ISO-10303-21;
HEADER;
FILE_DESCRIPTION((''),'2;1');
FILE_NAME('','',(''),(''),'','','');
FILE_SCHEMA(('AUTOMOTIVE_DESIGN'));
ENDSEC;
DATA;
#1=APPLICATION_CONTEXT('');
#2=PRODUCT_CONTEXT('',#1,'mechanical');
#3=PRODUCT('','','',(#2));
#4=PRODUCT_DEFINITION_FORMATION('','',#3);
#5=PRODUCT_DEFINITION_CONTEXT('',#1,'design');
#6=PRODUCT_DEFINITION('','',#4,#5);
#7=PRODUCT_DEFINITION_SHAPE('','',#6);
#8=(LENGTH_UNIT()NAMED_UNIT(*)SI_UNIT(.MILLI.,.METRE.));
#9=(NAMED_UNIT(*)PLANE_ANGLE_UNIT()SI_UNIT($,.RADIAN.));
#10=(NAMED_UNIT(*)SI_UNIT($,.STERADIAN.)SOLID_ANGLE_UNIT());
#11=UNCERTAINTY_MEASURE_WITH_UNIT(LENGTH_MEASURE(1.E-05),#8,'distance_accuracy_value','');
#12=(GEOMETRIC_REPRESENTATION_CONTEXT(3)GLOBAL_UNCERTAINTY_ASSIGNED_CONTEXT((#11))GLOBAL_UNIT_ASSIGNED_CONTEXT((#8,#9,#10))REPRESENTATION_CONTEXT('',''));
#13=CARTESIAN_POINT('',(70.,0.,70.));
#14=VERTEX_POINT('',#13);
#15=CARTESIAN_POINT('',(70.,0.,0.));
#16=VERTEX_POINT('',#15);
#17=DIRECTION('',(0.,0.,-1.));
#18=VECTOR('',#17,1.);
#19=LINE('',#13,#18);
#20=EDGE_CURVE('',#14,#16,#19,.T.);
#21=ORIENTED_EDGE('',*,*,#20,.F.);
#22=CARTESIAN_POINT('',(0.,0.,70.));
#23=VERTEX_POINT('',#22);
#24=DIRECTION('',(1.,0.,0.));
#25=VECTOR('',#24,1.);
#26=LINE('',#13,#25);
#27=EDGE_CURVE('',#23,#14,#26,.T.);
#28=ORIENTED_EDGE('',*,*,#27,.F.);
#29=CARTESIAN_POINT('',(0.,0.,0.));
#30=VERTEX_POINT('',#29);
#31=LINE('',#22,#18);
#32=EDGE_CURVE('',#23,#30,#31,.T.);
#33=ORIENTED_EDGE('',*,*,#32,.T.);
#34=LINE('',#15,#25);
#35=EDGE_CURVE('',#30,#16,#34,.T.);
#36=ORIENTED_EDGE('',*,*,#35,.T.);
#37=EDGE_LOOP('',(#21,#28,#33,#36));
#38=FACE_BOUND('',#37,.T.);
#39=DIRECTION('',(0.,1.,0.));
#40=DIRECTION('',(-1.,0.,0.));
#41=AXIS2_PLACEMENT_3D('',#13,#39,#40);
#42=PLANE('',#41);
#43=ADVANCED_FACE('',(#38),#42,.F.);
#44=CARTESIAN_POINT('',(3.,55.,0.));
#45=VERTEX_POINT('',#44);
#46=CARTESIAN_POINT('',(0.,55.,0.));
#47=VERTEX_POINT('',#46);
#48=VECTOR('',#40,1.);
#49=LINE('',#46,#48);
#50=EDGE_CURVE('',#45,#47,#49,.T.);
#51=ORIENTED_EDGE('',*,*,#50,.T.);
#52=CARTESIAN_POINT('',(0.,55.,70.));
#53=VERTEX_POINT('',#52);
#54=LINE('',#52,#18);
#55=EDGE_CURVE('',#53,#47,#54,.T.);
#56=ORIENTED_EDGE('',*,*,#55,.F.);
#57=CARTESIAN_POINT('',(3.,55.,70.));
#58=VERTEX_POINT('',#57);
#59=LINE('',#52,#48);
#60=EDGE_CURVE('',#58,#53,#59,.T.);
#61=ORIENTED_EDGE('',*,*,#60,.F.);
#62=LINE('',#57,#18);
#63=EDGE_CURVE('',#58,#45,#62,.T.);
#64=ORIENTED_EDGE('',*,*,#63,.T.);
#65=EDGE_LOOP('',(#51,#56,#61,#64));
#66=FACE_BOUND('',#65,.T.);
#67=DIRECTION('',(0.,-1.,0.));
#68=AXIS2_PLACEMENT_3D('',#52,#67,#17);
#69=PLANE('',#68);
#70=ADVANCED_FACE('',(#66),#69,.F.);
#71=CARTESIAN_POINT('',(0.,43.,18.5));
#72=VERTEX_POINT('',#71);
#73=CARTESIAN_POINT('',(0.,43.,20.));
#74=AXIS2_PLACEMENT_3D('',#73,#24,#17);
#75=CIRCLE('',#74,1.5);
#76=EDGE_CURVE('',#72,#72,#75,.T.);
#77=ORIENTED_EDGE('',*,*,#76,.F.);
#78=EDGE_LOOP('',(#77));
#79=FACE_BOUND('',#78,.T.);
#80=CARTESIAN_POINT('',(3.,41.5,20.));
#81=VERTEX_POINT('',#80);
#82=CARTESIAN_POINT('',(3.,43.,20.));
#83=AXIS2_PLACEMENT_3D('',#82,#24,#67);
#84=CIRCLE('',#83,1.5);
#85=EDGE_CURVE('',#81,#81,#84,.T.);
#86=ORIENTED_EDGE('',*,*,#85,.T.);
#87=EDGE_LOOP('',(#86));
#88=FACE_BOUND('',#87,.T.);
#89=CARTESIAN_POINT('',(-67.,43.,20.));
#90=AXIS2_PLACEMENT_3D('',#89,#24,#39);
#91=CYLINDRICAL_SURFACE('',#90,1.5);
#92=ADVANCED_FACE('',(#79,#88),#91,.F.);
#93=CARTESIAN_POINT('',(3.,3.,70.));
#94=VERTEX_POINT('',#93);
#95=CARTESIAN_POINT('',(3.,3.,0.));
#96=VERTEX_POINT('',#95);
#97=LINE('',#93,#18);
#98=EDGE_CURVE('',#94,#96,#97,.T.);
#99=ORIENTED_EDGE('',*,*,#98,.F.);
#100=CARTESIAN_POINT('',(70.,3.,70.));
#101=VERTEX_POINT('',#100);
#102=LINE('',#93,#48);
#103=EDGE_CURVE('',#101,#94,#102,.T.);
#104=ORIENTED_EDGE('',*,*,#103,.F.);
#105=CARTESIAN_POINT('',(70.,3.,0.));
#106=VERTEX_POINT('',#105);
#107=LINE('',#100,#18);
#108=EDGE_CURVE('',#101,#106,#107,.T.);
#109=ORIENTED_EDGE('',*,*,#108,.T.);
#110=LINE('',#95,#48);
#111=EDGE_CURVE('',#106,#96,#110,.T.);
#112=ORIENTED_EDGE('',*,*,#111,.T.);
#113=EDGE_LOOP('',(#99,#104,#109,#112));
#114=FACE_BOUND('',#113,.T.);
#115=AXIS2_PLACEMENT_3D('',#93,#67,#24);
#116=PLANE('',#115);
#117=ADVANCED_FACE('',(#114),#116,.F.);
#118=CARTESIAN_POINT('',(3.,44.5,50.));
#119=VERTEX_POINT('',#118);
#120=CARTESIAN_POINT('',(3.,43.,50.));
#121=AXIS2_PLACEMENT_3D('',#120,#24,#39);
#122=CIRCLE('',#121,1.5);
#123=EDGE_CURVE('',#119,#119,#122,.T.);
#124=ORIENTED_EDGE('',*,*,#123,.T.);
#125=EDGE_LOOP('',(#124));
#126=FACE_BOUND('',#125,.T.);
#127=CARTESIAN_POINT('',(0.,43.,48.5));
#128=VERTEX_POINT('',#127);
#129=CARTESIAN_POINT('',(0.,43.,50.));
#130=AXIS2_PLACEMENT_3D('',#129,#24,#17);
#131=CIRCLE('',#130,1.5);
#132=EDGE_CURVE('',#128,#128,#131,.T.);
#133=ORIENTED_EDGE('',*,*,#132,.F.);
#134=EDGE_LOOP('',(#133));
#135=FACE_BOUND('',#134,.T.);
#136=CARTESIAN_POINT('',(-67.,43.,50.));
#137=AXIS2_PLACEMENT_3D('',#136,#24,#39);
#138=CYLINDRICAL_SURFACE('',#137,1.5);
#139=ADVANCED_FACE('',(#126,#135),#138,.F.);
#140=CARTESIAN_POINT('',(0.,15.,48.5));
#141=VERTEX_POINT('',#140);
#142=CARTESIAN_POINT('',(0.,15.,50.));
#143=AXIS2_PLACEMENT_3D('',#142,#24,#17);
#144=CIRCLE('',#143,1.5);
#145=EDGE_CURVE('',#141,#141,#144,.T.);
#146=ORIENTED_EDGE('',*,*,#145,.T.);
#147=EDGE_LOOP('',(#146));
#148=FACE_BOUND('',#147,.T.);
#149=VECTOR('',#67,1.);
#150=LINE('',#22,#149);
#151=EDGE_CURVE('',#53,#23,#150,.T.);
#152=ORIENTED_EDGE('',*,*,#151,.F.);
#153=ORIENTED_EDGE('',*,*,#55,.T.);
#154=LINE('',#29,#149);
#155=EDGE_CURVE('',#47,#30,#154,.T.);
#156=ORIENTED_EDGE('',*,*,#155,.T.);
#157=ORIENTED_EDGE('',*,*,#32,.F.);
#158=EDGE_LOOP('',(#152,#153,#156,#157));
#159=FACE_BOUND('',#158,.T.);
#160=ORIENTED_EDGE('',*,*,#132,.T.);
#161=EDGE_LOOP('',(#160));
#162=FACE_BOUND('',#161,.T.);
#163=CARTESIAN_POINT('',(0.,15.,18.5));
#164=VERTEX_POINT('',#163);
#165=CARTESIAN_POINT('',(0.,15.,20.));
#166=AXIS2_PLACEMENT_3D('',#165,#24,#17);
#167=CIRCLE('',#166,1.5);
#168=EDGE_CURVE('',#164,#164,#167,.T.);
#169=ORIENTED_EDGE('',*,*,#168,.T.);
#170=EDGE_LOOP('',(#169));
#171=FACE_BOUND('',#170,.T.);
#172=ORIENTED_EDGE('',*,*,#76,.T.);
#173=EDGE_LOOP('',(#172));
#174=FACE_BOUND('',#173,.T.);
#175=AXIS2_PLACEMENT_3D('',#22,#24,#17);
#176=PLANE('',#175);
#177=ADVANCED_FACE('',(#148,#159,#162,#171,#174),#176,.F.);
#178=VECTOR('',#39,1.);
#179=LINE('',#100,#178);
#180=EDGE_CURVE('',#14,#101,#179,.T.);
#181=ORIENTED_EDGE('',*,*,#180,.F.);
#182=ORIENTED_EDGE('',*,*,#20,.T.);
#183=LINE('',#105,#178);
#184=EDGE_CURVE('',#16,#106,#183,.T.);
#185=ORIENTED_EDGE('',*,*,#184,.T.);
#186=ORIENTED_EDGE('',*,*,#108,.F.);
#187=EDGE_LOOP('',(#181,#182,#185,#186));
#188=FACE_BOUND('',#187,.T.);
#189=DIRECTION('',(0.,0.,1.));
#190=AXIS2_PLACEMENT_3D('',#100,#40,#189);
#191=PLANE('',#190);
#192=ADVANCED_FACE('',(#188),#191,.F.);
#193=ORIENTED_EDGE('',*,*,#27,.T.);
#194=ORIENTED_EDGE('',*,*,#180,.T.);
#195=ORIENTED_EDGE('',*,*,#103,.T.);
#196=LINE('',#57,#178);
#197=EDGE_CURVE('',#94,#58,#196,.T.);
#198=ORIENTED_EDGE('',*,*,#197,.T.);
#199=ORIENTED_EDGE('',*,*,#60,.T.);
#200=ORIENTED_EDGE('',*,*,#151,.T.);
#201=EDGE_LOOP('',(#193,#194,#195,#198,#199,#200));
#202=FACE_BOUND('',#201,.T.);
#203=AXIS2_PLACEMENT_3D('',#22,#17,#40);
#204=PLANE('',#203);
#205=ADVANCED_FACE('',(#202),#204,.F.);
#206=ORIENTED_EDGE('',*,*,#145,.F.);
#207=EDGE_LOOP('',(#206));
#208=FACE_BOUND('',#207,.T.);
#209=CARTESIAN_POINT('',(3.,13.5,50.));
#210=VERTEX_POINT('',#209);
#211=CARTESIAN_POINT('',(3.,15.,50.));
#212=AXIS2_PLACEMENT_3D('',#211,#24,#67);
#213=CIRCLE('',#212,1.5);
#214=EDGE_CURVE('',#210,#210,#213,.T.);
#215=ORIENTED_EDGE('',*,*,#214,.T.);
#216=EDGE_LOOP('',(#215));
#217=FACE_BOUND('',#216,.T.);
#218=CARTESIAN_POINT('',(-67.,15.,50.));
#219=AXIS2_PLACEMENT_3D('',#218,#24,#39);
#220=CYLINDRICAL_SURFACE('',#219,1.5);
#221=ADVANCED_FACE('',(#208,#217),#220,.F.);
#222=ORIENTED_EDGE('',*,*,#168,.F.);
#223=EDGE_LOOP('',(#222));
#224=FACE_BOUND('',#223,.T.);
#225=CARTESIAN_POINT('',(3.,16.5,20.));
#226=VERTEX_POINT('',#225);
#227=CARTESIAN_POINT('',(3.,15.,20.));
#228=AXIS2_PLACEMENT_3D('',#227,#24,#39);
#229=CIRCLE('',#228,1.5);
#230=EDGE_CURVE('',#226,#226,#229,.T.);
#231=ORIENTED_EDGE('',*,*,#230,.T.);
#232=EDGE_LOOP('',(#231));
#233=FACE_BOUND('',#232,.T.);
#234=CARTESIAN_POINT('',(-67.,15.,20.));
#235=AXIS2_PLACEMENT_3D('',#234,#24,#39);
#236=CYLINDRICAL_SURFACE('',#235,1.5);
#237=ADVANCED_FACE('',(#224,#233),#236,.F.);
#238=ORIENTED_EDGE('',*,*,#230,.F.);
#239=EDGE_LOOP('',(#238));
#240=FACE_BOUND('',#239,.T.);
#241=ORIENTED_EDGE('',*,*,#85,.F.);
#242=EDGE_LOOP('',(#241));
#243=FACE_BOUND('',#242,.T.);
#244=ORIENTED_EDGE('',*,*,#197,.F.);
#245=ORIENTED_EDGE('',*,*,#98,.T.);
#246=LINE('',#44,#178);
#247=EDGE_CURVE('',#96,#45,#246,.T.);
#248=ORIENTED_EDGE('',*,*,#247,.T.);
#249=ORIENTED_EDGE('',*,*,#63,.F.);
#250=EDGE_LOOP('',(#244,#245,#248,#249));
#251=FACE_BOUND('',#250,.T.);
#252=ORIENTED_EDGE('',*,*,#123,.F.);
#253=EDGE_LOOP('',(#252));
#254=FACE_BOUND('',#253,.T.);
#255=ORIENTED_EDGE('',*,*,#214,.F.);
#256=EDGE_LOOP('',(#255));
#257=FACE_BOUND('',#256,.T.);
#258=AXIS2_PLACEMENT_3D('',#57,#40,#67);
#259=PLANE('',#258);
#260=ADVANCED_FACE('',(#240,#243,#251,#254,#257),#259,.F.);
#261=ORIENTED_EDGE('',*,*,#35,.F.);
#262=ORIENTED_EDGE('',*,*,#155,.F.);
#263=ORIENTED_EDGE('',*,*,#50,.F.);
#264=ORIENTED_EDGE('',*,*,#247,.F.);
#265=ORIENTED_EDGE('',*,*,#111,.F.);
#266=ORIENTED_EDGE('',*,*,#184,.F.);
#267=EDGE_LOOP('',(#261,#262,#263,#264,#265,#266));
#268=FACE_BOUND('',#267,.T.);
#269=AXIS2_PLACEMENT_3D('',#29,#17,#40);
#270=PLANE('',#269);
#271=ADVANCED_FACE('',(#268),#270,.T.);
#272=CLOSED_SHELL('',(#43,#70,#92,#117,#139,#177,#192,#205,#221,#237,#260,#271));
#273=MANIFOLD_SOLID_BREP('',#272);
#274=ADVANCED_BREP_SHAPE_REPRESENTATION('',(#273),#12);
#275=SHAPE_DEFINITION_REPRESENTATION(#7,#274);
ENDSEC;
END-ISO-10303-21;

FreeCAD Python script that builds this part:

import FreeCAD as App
import Part
import Sketcher
from FreeCAD import Vector
Q = App.Units.Quantity


def add_polygon(sketch, points):
    """Adds a closed chain of lines whose ends are joined by coincident constraints."""
    first, n = sketch.GeometryCount, len(points)
    for a, b in zip(points, points[1:] + points[:1]):
        sketch.addGeometry(Part.LineSegment(App.Vector(*a, 0), App.Vector(*b, 0)), False)
    for i in range(n):
        sketch.addConstraint(Sketcher.Constraint("Coincident", first + i, 2, first + (i + 1) % n, 1))

doc = App.newDocument("Part")
body = doc.addObject("PartDesign::Body", "Body")

sketch1 = doc.addObject("Sketcher::SketchObject", "Sketch")
body.addObject(sketch1)
sketch1.AttachmentSupport = (doc.XY_Plane, [""])
sketch1.MapMode = "FlatFace"
add_polygon(sketch1, [(0, 55), (0, 0), (70, 0), (70, 3), (3, 3), (3, 55)])
sketch1.addConstraint(Sketcher.Constraint("Vertical", 0))
sketch1.addConstraint(Sketcher.Constraint("Horizontal", 1))
sketch1.addConstraint(Sketcher.Constraint("Vertical", 2))
sketch1.addConstraint(Sketcher.Constraint("Horizontal", 3))
sketch1.addConstraint(Sketcher.Constraint("Vertical", 4))
sketch1.addConstraint(Sketcher.Constraint("Horizontal", 5))
sketch1.addConstraint(Sketcher.Constraint("Coincident", 0, 2, -1, 1))
sketch1.addConstraint(Sketcher.Constraint("Equal", 5, 2))
sketch1.addConstraint(Sketcher.Constraint("DistanceX", 1, 1, 1, 2, Q("70 mm")))
sketch1.addConstraint(Sketcher.Constraint("DistanceX", 3, 2, 3, 1, Q("67 mm")))
sketch1.addConstraint(Sketcher.Constraint("DistanceY", 0, 2, 0, 1, Q("55 mm")))
pad1 = doc.addObject("PartDesign::Pad", "Pad")
body.addObject(pad1)
pad1.Profile = sketch1
pad1.Length = 70

sketch2 = doc.addObject("Sketcher::SketchObject", "Sketch001")
body.addObject(sketch2)
sketch2.AttachmentSupport = (doc.YZ_Plane, [""])
sketch2.MapMode = "FlatFace"
sketch2.AttachmentOffset = App.Placement(Vector(0, 0, 3), App.Rotation())
sketch2.addGeometry(Part.Circle(Vector(43, 50, 0), Vector(0, 0, 1), 1.5), False)
sketch2.addGeometry(Part.Circle(Vector(43, 20, 0), Vector(0, 0, 1), 1.5), False)
sketch2.addGeometry(Part.Circle(Vector(15, 20, 0), Vector(0, 0, 1), 1.5), False)
sketch2.addGeometry(Part.Circle(Vector(15, 50, 0), Vector(0, 0, 1), 1.5), False)
sketch2.addConstraint(Sketcher.Constraint("Equal", 0, 1))
sketch2.addConstraint(Sketcher.Constraint("Equal", 1, 2))
sketch2.addConstraint(Sketcher.Constraint("Equal", 2, 3))
sketch2.addConstraint(Sketcher.Constraint("Horizontal", 1, 3, 2, 3))
sketch2.addConstraint(Sketcher.Constraint("Horizontal", 0, 3, 3, 3))
sketch2.addConstraint(Sketcher.Constraint("Vertical", 0, 3, 1, 3))
sketch2.addConstraint(Sketcher.Constraint("Vertical", 2, 3, 3, 3))
sketch2.addConstraint(Sketcher.Constraint("Diameter", 0, Q("3 mm")))
sketch2.addConstraint(Sketcher.Constraint("DistanceX", -1, 1, 0, 3, Q("43 mm")))
sketch2.addConstraint(Sketcher.Constraint("DistanceY", -1, 1, 0, 3, Q("50 mm")))
sketch2.addConstraint(Sketcher.Constraint("DistanceY", -1, 1, 1, 3, Q("20 mm")))
sketch2.addConstraint(Sketcher.Constraint("DistanceX", -1, 1, 2, 3, Q("15 mm")))
pocket1 = doc.addObject("PartDesign::Pocket", "Pocket")
body.addObject(pocket1)
pocket1.Profile = sketch2
pocket1.Length = 70

doc.recompute()
